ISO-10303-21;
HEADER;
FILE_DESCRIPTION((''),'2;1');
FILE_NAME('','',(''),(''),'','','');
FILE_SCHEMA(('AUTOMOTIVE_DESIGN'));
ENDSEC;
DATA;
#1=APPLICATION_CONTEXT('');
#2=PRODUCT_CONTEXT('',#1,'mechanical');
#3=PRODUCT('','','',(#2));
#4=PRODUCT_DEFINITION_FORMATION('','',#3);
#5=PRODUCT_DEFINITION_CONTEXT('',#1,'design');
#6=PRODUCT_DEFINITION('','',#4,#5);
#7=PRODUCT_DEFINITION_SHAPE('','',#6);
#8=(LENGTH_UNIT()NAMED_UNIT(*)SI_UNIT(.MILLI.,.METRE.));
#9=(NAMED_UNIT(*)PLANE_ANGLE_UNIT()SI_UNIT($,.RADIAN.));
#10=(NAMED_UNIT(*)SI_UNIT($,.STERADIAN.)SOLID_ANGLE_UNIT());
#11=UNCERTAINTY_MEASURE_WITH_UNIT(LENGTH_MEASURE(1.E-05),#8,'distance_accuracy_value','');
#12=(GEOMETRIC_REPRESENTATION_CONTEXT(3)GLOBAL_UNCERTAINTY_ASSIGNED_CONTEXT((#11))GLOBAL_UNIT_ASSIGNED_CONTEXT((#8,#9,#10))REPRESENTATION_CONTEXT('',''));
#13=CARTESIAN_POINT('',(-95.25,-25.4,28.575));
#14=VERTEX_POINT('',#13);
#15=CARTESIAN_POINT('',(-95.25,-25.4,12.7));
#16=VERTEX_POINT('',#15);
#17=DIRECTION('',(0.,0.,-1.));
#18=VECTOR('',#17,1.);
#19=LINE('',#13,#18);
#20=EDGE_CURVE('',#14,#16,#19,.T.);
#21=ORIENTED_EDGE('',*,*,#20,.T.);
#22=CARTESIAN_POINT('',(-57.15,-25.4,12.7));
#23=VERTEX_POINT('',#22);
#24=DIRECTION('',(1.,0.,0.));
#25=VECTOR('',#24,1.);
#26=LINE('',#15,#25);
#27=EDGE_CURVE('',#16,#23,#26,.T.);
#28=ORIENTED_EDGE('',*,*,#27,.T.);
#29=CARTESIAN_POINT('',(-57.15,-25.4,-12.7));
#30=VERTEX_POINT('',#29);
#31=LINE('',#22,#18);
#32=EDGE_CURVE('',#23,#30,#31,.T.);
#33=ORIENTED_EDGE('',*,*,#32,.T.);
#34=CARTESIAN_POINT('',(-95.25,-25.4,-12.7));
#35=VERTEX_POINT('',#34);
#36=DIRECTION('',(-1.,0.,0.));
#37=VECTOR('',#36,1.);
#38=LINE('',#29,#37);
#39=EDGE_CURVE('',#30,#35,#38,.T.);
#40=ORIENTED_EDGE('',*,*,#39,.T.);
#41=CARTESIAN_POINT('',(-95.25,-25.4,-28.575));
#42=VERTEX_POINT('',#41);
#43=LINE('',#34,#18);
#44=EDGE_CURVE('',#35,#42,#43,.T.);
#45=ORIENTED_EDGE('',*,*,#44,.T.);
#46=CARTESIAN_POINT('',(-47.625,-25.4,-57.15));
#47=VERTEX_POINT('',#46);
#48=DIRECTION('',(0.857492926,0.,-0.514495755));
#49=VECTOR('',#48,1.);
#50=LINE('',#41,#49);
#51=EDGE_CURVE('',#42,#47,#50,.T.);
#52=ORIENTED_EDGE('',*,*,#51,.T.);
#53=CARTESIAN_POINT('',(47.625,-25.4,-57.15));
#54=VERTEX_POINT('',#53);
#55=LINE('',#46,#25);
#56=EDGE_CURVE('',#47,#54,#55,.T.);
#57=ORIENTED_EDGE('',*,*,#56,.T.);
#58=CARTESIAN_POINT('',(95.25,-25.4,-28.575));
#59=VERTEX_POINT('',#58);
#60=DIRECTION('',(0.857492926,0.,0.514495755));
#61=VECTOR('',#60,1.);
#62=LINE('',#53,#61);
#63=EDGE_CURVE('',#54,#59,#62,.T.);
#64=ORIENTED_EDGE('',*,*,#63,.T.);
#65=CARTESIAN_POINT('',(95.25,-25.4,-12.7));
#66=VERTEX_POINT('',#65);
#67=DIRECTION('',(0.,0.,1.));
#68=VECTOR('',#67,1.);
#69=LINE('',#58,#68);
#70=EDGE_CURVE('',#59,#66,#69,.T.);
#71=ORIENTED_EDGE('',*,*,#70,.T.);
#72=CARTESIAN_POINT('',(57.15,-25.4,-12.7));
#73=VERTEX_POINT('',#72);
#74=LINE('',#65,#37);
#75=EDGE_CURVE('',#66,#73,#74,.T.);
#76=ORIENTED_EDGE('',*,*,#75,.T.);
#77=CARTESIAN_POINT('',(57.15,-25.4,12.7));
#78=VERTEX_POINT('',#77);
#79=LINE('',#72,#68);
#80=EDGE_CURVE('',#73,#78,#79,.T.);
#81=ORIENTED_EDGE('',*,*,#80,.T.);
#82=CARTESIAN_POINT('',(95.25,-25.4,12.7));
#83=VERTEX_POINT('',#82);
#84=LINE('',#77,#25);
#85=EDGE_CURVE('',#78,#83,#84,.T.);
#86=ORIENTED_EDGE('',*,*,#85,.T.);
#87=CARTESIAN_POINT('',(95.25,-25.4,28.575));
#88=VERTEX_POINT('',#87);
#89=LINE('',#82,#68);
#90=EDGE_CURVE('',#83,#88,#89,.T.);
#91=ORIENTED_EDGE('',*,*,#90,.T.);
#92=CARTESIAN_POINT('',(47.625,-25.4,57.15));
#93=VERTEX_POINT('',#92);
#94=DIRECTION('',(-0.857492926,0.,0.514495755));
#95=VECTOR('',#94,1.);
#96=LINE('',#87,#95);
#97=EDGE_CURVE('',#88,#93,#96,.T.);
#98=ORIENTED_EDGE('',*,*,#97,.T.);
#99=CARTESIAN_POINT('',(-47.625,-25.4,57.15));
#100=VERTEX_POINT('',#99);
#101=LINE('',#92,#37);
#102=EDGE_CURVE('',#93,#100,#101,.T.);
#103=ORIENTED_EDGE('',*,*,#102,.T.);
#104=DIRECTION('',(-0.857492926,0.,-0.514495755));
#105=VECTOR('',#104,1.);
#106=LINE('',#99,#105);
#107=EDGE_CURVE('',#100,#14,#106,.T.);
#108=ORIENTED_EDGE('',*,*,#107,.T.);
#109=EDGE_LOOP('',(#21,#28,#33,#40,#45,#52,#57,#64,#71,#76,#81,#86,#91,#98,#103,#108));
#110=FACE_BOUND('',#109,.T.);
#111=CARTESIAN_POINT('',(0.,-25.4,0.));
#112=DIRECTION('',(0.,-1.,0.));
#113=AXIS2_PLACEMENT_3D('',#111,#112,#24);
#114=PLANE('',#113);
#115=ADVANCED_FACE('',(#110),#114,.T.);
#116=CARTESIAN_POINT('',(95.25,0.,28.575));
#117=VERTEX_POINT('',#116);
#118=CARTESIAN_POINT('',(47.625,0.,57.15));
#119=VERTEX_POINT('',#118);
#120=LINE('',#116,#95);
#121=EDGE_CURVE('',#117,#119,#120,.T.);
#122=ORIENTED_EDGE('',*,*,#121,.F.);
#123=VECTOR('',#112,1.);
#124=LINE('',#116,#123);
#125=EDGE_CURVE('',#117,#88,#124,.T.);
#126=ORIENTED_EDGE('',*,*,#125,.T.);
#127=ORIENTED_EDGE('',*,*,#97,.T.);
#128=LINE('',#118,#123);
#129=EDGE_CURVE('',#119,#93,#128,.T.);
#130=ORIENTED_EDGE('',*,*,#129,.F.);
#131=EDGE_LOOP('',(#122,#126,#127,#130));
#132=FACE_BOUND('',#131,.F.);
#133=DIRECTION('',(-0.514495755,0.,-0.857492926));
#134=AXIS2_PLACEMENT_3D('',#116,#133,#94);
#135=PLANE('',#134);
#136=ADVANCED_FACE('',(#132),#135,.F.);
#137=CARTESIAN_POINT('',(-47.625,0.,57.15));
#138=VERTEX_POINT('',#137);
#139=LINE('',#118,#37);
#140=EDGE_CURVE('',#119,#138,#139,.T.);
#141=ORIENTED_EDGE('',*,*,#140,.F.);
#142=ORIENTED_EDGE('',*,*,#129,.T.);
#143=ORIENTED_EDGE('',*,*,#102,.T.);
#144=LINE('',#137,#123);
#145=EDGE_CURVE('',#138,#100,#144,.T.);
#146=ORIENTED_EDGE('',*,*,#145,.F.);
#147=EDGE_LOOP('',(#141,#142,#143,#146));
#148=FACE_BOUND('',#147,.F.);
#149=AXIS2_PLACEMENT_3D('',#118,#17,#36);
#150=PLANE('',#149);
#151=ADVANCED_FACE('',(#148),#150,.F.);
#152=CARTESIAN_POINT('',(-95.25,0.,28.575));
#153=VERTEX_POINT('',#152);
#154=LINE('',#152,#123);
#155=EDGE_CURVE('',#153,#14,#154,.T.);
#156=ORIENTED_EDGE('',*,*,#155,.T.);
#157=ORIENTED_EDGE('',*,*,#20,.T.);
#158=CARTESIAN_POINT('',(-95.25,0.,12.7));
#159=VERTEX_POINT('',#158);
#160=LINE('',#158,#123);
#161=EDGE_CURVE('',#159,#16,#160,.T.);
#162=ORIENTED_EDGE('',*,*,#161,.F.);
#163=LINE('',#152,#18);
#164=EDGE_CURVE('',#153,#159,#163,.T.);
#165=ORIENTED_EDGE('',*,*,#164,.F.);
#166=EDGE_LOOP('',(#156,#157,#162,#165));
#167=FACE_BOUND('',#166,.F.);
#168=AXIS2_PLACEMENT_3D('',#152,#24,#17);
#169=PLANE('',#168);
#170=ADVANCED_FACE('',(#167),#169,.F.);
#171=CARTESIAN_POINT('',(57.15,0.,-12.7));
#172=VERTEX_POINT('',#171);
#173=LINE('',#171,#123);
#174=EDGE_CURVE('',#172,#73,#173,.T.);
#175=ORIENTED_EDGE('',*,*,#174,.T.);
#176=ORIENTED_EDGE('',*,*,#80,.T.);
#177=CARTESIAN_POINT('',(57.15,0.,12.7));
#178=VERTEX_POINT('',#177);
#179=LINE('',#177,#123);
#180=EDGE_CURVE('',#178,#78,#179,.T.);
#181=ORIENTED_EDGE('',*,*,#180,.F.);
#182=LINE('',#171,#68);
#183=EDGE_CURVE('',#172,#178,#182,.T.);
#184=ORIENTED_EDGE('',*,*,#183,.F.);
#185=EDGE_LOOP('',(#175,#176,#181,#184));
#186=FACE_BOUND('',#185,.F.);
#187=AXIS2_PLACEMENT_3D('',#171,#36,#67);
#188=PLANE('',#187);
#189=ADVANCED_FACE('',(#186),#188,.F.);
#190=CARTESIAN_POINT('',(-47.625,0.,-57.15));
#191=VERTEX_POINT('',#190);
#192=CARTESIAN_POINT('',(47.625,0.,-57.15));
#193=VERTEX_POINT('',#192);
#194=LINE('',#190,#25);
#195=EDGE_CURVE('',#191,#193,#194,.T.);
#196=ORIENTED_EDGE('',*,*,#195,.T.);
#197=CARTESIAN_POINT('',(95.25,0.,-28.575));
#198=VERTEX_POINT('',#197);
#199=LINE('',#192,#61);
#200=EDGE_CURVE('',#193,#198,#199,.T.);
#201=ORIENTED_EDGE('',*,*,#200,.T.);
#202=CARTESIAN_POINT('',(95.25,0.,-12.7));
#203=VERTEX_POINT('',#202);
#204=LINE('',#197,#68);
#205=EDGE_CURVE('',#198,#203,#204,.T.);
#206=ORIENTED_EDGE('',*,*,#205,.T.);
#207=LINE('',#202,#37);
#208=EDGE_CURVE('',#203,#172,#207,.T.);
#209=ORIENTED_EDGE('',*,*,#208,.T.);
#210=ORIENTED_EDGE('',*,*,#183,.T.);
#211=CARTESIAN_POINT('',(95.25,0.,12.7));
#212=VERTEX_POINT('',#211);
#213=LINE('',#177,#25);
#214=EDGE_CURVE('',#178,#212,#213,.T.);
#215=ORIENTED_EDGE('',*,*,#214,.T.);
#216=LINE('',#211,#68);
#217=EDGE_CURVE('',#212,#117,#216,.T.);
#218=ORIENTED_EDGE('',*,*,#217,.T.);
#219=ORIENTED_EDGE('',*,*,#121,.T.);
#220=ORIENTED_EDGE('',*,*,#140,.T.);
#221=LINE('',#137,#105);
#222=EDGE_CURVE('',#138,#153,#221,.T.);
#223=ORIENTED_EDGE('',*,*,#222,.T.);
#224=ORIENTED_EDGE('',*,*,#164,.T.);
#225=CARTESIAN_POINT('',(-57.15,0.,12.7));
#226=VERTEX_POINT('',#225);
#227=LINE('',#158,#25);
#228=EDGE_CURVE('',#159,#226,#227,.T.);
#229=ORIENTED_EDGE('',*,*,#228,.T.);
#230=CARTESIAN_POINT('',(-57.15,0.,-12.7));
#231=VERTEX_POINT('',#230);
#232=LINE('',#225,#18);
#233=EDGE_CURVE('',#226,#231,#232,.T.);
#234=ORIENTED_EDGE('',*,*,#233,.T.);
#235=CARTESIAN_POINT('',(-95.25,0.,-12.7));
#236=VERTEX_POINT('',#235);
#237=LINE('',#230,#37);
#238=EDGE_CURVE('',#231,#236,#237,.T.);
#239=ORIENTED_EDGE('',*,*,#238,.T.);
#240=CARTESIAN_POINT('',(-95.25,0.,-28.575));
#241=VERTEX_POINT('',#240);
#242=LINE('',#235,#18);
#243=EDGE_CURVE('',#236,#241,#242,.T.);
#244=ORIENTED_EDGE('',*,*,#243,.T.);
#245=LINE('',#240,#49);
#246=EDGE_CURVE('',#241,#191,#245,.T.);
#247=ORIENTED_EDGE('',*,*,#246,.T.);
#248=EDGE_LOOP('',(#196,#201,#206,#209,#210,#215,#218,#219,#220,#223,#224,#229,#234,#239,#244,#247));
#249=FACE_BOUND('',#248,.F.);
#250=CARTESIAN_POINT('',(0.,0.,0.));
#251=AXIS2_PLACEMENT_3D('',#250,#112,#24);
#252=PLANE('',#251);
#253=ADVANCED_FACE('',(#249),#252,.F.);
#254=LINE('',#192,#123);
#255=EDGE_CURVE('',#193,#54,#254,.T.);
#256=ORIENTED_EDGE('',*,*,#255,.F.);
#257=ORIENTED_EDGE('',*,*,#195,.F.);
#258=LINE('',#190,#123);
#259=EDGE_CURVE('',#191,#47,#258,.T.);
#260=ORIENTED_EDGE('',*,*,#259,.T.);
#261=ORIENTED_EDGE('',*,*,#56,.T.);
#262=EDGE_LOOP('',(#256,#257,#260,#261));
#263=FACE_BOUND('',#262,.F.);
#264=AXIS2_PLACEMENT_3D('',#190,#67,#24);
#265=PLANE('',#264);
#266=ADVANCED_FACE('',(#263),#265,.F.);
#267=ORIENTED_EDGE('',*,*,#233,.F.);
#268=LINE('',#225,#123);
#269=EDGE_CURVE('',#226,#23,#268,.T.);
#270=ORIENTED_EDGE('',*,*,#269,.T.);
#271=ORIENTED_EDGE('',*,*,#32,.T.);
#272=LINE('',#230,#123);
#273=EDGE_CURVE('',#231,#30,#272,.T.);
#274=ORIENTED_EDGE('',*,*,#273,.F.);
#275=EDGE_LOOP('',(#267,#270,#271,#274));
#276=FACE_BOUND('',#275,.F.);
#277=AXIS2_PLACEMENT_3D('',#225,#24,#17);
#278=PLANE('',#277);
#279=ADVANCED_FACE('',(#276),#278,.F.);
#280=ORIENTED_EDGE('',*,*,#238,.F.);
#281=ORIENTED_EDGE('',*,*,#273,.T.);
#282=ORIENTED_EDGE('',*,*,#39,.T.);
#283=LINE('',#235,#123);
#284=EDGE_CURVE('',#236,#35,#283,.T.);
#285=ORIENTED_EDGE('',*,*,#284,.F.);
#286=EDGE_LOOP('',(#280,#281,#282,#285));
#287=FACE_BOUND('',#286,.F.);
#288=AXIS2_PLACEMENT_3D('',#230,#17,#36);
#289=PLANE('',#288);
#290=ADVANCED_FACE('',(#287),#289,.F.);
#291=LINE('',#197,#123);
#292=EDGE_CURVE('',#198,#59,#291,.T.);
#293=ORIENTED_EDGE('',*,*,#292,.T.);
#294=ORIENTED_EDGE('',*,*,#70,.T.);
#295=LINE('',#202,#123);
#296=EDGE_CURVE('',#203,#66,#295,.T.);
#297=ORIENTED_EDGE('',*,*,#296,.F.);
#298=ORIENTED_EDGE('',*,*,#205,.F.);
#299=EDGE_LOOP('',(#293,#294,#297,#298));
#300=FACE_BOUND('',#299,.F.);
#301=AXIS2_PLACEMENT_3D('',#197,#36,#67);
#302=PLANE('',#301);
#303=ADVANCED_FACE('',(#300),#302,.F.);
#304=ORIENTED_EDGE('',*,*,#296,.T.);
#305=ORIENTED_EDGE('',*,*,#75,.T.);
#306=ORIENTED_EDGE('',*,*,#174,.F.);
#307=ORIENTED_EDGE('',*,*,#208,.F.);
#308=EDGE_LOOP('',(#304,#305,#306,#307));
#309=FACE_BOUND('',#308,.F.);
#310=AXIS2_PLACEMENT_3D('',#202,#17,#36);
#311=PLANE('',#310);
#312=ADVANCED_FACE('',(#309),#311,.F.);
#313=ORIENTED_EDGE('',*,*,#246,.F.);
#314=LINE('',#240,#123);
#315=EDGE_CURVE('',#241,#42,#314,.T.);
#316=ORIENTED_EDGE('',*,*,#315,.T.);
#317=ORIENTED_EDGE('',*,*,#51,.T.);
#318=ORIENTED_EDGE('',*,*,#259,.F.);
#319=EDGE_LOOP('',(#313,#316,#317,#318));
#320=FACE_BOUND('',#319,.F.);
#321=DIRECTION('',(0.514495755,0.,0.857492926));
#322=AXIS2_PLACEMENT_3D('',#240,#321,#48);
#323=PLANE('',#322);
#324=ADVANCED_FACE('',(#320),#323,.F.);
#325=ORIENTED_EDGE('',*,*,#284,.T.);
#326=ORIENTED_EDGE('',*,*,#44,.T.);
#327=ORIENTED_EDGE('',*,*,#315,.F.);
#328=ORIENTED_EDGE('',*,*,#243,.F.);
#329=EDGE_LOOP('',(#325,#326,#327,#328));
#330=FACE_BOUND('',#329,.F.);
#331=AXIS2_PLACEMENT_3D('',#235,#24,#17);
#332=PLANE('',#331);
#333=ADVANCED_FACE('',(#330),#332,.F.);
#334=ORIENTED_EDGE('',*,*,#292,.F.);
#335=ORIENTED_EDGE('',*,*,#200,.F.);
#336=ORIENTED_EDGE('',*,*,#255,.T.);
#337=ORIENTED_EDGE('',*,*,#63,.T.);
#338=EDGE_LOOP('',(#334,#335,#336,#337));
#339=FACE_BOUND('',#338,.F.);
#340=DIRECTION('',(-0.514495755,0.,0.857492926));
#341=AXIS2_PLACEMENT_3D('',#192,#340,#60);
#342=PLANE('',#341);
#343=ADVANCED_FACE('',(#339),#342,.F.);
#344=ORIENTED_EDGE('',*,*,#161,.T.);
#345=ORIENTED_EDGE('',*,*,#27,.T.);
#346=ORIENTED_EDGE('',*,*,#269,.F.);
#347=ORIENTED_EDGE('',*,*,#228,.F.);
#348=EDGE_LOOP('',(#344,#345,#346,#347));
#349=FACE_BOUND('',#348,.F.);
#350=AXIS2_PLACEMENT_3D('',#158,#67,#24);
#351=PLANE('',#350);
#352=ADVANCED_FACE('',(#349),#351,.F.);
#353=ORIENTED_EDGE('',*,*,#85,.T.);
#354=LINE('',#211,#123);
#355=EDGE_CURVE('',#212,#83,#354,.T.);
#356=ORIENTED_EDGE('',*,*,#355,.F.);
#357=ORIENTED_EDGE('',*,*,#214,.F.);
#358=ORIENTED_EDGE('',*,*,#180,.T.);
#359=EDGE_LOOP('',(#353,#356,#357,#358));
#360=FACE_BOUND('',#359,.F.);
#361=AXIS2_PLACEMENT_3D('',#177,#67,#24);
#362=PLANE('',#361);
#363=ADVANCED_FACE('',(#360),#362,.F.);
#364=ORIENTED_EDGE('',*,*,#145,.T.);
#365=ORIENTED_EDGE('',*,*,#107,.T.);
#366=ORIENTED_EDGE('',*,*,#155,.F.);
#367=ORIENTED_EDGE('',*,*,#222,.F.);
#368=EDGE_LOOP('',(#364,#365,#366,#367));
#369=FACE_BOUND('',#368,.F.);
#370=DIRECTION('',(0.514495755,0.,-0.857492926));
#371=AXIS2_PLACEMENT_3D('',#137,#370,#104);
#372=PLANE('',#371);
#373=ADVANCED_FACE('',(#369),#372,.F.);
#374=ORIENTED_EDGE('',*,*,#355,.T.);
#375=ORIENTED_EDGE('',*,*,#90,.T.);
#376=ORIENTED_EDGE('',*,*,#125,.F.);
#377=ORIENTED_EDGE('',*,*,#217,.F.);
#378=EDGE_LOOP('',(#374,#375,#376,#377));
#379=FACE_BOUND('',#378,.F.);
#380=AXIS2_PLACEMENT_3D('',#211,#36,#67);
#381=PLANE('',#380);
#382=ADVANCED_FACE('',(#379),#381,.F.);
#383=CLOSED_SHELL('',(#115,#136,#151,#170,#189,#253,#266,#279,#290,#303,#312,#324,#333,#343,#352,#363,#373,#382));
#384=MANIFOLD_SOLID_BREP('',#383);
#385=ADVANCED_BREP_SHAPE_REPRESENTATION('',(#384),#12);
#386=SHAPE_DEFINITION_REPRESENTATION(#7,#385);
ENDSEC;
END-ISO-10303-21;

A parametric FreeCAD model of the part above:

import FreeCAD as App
import Part
import Sketcher
Q = App.Units.Quantity

doc = App.newDocument("Part")
body = doc.addObject("PartDesign::Body", "Body")

sketch1 = body.newObject("Sketcher::SketchObject", "Sketch")
sketch1.AttachmentSupport = (doc.getObject("XZ_Plane"), [""])
sketch1.MapMode = "FlatFace"
sketch1.addGeometry([
    Part.LineSegment(App.Vector(48, 57, 0), App.Vector(-48, 57, 0)),
    Part.LineSegment(App.Vector(-48, 57, 0), App.Vector(-95, 29, 0)),
    Part.LineSegment(App.Vector(-95, 29, 0), App.Vector(-95, 13, 0)),
    Part.LineSegment(App.Vector(-95, 13, 0), App.Vector(-57, 13, 0)),
    Part.LineSegment(App.Vector(-57, 13, 0), App.Vector(-57, -13, 0)),
    Part.LineSegment(App.Vector(-57, -13, 0), App.Vector(-95, -13, 0)),
    Part.LineSegment(App.Vector(-95, -13, 0), App.Vector(-95, -29, 0)),
    Part.LineSegment(App.Vector(-95, -29, 0), App.Vector(-48, -57, 0)),
    Part.LineSegment(App.Vector(-48, -57, 0), App.Vector(48, -57, 0)),
    Part.LineSegment(App.Vector(48, -57, 0), App.Vector(95, -29, 0)),
    Part.LineSegment(App.Vector(95, -29, 0), App.Vector(95, -13, 0)),
    Part.LineSegment(App.Vector(95, -13, 0), App.Vector(57, -13, 0)),
    Part.LineSegment(App.Vector(57, -13, 0), App.Vector(57, 13, 0)),
    Part.LineSegment(App.Vector(57, 13, 0), App.Vector(95, 13, 0)),
    Part.LineSegment(App.Vector(95, 13, 0), App.Vector(95, 29, 0)),
    Part.LineSegment(App.Vector(95, 29, 0), App.Vector(48, 57, 0)),
], False)
sketch1.addConstraint([
    Sketcher.Constraint("Coincident", 0, 2, 1, 1),
    Sketcher.Constraint("Coincident", 1, 2, 2, 1),
    Sketcher.Constraint("Coincident", 2, 2, 3, 1),
    Sketcher.Constraint("Coincident", 3, 2, 4, 1),
    Sketcher.Constraint("Coincident", 4, 2, 5, 1),
    Sketcher.Constraint("Coincident", 5, 2, 6, 1),
    Sketcher.Constraint("Coincident", 6, 2, 7, 1),
    Sketcher.Constraint("Coincident", 7, 2, 8, 1),
    Sketcher.Constraint("Coincident", 8, 2, 9, 1),
    Sketcher.Constraint("Coincident", 9, 2, 10, 1),
    Sketcher.Constraint("Coincident", 10, 2, 11, 1),
    Sketcher.Constraint("Coincident", 11, 2, 12, 1),
    Sketcher.Constraint("Coincident", 12, 2, 13, 1),
    Sketcher.Constraint("Coincident", 13, 2, 14, 1),
    Sketcher.Constraint("Coincident", 14, 2, 15, 1),
    Sketcher.Constraint("Coincident", 15, 2, 0, 1),
    Sketcher.Constraint("Horizontal", 0),
    Sketcher.Constraint("Vertical", 2),
    Sketcher.Constraint("Horizontal", 3),
    Sketcher.Constraint("Vertical", 4),
    Sketcher.Constraint("Horizontal", 5),
    Sketcher.Constraint("Vertical", 6),
    Sketcher.Constraint("Horizontal", 8),
    Sketcher.Constraint("Vertical", 10),
    Sketcher.Constraint("Horizontal", 11),
    Sketcher.Constraint("Vertical", 12),
    Sketcher.Constraint("Horizontal", 13),
    Sketcher.Constraint("Vertical", 14),
    Sketcher.Constraint("Symmetric", 0, 2, 8, 2, -1, 1),
    Sketcher.Constraint("Symmetric", 1, 2, 9, 2, -1, 1),
    Sketcher.Constraint("Symmetric", 3, 2, 11, 2, -1, 1),
    Sketcher.Constraint("Symmetric", 5, 2, 13, 2, -1, 1),
    Sketcher.Constraint("Symmetric", 6, 2, 9, 2, -2),
    Sketcher.Constraint("Parallel", 7, 15),
    Sketcher.Constraint("Horizontal", 5, 2, 10, 2),
    Sketcher.Constraint("Horizontal", 1, 2, 14, 2),
    Sketcher.Constraint("Vertical", 0, 2, 7, 2),
    Sketcher.Constraint("DistanceY", 4, 2, 4, 1, Q("1 in")),
    Sketcher.Constraint("DistanceX", 3, 1, 3, 2, Q("1.5 in")),
    Sketcher.Constraint("DistanceX", 4, 2, 9, 2, Q("6 in")),
    Sketcher.Constraint("DistanceX", 0, 2, 0, 1, Q("3.75 in")),
    Sketcher.Constraint("DistanceY", 8, 2, 0, 2, Q("4.5 in")),
    Sketcher.Constraint("DistanceY", 2, 2, 2, 1, Q("0.625 in")),
])
pad1 = body.newObject("PartDesign::Pad", "Pad")
pad1.Profile = sketch1
pad1.Length = Q("1 in")

sketch2 = body.newObject("Sketcher::SketchObject", "Sketch001")
sketch2.AttachmentSupport = (doc.getObject("XZ_Plane"), [""])
sketch2.MapMode = "FlatFace"
sketch2.addGeometry([
    Part.LineSegment(App.Vector(48, 57, 0), App.Vector(-48, 57, 0)),
    Part.LineSegment(App.Vector(-48, 57, 0), App.Vector(-95, 29, 0)),
    Part.LineSegment(App.Vector(-95, 29, 0), App.Vector(-95, 13, 0)),
    Part.LineSegment(App.Vector(-95, 13, 0), App.Vector(-57, 13, 0)),
    Part.LineSegment(App.Vector(-57, 13, 0), App.Vector(-57, -13, 0)),
    Part.LineSegment(App.Vector(-57, -13, 0), App.Vector(-95, -13, 0)),
    Part.LineSegment(App.Vector(-95, -13, 0), App.Vector(-95, -29, 0)),
    Part.LineSegment(App.Vector(-95, -29, 0), App.Vector(-48, -57, 0)),
    Part.LineSegment(App.Vector(-48, -57, 0), App.Vector(48, -57, 0)),
    Part.LineSegment(App.Vector(48, -57, 0), App.Vector(95, -29, 0)),
    Part.LineSegment(App.Vector(95, -29, 0), App.Vector(95, -13, 0)),
    Part.LineSegment(App.Vector(95, -13, 0), App.Vector(57, -13, 0)),
    Part.LineSegment(App.Vector(57, -13, 0), App.Vector(57, 13, 0)),
    Part.LineSegment(App.Vector(57, 13, 0), App.Vector(95, 13, 0)),
    Part.LineSegment(App.Vector(95, 13, 0), App.Vector(95, 29, 0)),
    Part.LineSegment(App.Vector(95, 29, 0), App.Vector(48, 57, 0)),
], False)
sketch2.addConstraint([
    Sketcher.Constraint("Coincident", 0, 2, 1, 1),
    Sketcher.Constraint("Coincident", 1, 2, 2, 1),
    Sketcher.Constraint("Coincident", 2, 2, 3, 1),
    Sketcher.Constraint("Coincident", 3, 2, 4, 1),
    Sketcher.Constraint("Coincident", 4, 2, 5, 1),
    Sketcher.Constraint("Coincident", 5, 2, 6, 1),
    Sketcher.Constraint("Coincident", 6, 2, 7, 1),
    Sketcher.Constraint("Coincident", 7, 2, 8, 1),
    Sketcher.Constraint("Coincident", 8, 2, 9, 1),
    Sketcher.Constraint("Coincident", 9, 2, 10, 1),
    Sketcher.Constraint("Coincident", 10, 2, 11, 1),
    Sketcher.Constraint("Coincident", 11, 2, 12, 1),
    Sketcher.Constraint("Coincident", 12, 2, 13, 1),
    Sketcher.Constraint("Coincident", 13, 2, 14, 1),
    Sketcher.Constraint("Coincident", 14, 2, 15, 1),
    Sketcher.Constraint("Coincident", 15, 2, 0, 1),
    Sketcher.Constraint("Horizontal", 0),
    Sketcher.Constraint("Vertical", 2),
    Sketcher.Constraint("Horizontal", 3),
    Sketcher.Constraint("Vertical", 4),
    Sketcher.Constraint("Horizontal", 5),
    Sketcher.Constraint("Vertical", 6),
    Sketcher.Constraint("Horizontal", 8),
    Sketcher.Constraint("Vertical", 10),
    Sketcher.Constraint("Horizontal", 11),
    Sketcher.Constraint("Vertical", 12),
    Sketcher.Constraint("Horizontal", 13),
    Sketcher.Constraint("Vertical", 14),
    Sketcher.Constraint("Symmetric", 0, 2, 8, 2, -1, 1),
    Sketcher.Constraint("Symmetric", 1, 2, 9, 2, -1, 1),
    Sketcher.Constraint("Symmetric", 3, 2, 11, 2, -1, 1),
    Sketcher.Constraint("Symmetric", 5, 2, 13, 2, -1, 1),
    Sketcher.Constraint("Symmetric", 6, 2, 9, 2, -2),
    Sketcher.Constraint("Parallel", 7, 15),
    Sketcher.Constraint("Horizontal", 5, 2, 10, 2),
    Sketcher.Constraint("Horizontal", 1, 2, 14, 2),
    Sketcher.Constraint("Vertical", 0, 2, 7, 2),
    Sketcher.Constraint("DistanceY", 4, 2, 4, 1, Q("1 in")),
    Sketcher.Constraint("DistanceX", 3, 1, 3, 2, Q("1.5 in")),
    Sketcher.Constraint("DistanceX", 4, 2, 9, 2, Q("6 in")),
    Sketcher.Constraint("DistanceX", 0, 2, 0, 1, Q("3.75 in")),
    Sketcher.Constraint("DistanceY", 8, 2, 0, 2, Q("4.5 in")),
    Sketcher.Constraint("DistanceY", 2, 2, 2, 1, Q("0.625 in")),
])
pocket1 = body.newObject("PartDesign::Pocket", "Pocket")
pocket1.Profile = sketch2
pocket1.Length = Q("1 in")

doc.recompute()
